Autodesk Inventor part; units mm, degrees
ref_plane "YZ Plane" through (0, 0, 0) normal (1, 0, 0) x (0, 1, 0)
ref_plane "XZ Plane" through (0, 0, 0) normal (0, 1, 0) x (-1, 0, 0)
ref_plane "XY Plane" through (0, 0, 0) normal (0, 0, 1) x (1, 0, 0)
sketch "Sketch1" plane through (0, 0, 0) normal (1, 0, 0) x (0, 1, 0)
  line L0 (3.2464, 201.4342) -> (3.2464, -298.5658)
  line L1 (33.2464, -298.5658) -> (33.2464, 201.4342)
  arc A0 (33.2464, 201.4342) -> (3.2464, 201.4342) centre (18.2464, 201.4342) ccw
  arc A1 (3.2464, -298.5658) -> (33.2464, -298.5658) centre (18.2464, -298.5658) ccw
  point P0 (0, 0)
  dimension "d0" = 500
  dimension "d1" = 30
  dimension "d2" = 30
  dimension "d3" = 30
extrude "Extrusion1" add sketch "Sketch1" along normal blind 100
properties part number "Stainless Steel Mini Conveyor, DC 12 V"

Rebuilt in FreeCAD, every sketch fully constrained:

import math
import FreeCAD as App
import Part
import Sketcher
Q = App.Units.Quantity

doc = App.newDocument("Part")
body = doc.addObject("PartDesign::Body", "Body")

sketch1 = body.newObject("Sketcher::SketchObject", "Sketch")
sketch1.AttachmentSupport = (doc.getObject("YZ_Plane"), [""])
sketch1.MapMode = "FlatFace"
sketch1.addGeometry(Part.ArcOfCircle(Part.Circle(App.Vector(18, 201, 0), App.Vector(0, 0, 1), 15), math.radians(0), math.radians(180)), False)
sketch1.addGeometry(Part.LineSegment(App.Vector(3, 201, 0), App.Vector(3, -299, 0)), False)
sketch1.addGeometry(Part.ArcOfCircle(Part.Circle(App.Vector(18, -299, 0), App.Vector(0, 0, 1), 15), math.radians(180), math.radians(360)), False)
sketch1.addGeometry(Part.LineSegment(App.Vector(33, -299, 0), App.Vector(33, 201, 0)), False)
sketch1.addConstraint(Sketcher.Constraint("Tangent", 0, 2, 1, 1))
sketch1.addConstraint(Sketcher.Constraint("Tangent", 1, 2, 2, 1))
sketch1.addConstraint(Sketcher.Constraint("Tangent", 2, 2, 3, 1))
sketch1.addConstraint(Sketcher.Constraint("Tangent", 3, 2, 0, 1))
sketch1.addConstraint(Sketcher.Constraint("Vertical", 1))
sketch1.addConstraint(Sketcher.Constraint("Vertical", 3))
sketch1.addConstraint(Sketcher.Constraint("Radius", 0, Q("15 mm")))
sketch1.addConstraint(Sketcher.Constraint("DistanceY", 1, 2, 1, 1, Q("500 mm")))
sketch1.addConstraint(Sketcher.Constraint("DistanceX", -1, 1, 0, 3, Q("18.2464 mm")))
sketch1.addConstraint(Sketcher.Constraint("DistanceY", -1, 1, 0, 3, Q("201.4342 mm")))
pad1 = body.newObject("PartDesign::Pad", "Pad")
pad1.Profile = sketch1
pad1.Length = 100

doc.recompute()
